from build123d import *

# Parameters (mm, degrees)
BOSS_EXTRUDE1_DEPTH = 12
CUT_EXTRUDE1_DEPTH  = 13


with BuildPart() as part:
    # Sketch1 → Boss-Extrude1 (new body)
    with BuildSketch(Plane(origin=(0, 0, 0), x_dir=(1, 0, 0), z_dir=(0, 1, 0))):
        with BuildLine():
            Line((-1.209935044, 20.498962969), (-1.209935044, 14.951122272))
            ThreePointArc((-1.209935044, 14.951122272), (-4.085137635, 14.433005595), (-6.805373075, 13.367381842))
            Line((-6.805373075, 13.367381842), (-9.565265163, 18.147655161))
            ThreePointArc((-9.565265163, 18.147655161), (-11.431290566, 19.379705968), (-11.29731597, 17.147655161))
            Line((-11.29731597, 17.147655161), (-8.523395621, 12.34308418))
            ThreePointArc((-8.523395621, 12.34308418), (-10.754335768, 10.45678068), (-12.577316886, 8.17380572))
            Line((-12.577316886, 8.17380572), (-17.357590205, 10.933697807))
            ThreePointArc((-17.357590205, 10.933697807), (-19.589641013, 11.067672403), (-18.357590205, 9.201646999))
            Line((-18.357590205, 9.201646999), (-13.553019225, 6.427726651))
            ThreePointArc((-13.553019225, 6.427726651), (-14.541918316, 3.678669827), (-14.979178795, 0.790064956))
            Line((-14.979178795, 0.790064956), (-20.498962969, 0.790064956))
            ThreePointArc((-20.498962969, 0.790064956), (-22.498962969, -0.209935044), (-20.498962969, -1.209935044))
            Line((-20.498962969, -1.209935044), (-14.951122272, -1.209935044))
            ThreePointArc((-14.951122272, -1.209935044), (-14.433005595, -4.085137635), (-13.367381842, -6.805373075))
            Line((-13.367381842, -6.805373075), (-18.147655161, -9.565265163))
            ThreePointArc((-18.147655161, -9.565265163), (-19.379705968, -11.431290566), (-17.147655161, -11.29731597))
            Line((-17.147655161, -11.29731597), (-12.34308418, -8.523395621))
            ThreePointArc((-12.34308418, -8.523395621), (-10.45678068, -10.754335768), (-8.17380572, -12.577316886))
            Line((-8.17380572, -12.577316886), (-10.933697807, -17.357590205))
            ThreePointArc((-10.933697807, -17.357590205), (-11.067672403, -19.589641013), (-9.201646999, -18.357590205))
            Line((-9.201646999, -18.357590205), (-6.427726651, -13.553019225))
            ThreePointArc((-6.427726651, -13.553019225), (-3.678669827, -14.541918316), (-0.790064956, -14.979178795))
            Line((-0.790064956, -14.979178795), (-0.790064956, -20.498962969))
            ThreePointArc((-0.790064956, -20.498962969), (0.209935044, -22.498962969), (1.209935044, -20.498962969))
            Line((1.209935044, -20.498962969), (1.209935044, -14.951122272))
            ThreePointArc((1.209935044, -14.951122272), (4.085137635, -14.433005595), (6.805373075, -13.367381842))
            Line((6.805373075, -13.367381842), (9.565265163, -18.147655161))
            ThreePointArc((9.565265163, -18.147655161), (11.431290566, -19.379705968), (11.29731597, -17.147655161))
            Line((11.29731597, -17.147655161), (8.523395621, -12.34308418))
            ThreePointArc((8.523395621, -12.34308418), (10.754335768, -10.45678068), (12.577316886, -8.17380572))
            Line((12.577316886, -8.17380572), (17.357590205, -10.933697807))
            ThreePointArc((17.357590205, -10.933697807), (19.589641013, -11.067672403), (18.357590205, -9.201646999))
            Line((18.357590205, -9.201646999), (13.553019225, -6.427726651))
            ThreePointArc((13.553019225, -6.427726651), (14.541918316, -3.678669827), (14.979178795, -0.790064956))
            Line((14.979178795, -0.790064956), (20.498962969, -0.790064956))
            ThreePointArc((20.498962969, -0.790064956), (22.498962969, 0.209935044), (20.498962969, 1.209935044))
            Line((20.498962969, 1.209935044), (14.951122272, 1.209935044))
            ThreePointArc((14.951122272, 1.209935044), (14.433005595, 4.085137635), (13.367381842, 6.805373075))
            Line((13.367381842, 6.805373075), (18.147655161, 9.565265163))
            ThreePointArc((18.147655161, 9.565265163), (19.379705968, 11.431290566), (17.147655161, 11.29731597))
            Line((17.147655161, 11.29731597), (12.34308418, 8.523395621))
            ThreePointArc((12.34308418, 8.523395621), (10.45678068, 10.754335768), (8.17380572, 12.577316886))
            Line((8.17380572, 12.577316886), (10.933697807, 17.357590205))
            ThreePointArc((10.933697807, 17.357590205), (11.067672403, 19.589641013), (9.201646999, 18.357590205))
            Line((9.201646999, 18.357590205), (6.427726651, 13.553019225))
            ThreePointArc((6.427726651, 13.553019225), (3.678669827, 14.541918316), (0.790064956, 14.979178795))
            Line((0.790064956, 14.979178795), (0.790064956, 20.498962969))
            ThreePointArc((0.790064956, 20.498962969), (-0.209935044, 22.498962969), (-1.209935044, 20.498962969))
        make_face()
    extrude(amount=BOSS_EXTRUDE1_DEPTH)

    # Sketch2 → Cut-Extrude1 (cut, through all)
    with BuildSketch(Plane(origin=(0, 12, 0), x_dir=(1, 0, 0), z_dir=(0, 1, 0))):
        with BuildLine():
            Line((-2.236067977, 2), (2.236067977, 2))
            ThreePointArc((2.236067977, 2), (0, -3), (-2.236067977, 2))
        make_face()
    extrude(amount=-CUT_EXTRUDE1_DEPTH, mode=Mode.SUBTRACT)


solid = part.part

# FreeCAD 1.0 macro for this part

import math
import FreeCAD as App
import Part
import Sketcher

V = App.Vector
Q = App.Units.Quantity

doc = App.newDocument("Part")
body = doc.addObject("PartDesign::Body", "Body")

sketch1 = body.newObject("Sketcher::SketchObject", "Sketch")
sketch1.AttachmentSupport = (doc.getObject("XZ_Plane"), [""])
sketch1.MapMode = "FlatFace"
sketch1.addGeometry([
    Part.LineSegment(V(-1.209935, -20.498963, 0), V(-1.209935, -14.951122, 0)),
    Part.ArcOfCircle(Part.Circle(V(0, 0, 0), V(0, 0, 1), 15), math.radians(-116.980777), math.radians(-94.626638)),
    Part.LineSegment(V(-6.805373, -13.367382, 0), V(-9.565265, -18.147655, 0)),
    Part.ArcOfCircle(Part.Circle(V(-10.806291, -18.297174, 0), V(0, 0, 1), 1.25), math.radians(113.130102), math.radians(366.869898)),
    Part.LineSegment(V(-11.297316, -17.147655, 0), V(-8.523396, -12.343084, 0)),
    Part.ArcOfCircle(Part.Circle(V(0, 0, 0), V(0, 0, 1), 15), math.radians(-146.980777), math.radians(-124.626638)),
    Part.LineSegment(V(-12.577317, -8.173806, 0), V(-17.35759, -10.933698, 0)),
    Part.ArcOfCircle(Part.Circle(V(-18.507109, -10.442672, 0), V(0, 0, 1), 1.25), math.radians(83.130102), math.radians(336.869898)),
    Part.LineSegment(V(-18.35759, -9.201647, 0), V(-13.553019, -6.427727, 0)),
    Part.ArcOfCircle(Part.Circle(V(0, 0, 0), V(0, 0, 1), 15), math.radians(-176.980777), math.radians(-154.626638)),
    Part.LineSegment(V(-14.979179, -0.790065, 0), V(-20.498963, -0.790065, 0)),
    Part.ArcOfCircle(Part.Circle(V(-21.248963, 0.209935, 0), V(0, 0, 1), 1.25), math.radians(53.130102), math.radians(306.869898)),
    Part.LineSegment(V(-20.498963, 1.209935, 0), V(-14.951122, 1.209935, 0)),
    Part.ArcOfCircle(Part.Circle(V(0, 0, 0), V(0, 0, 1), 15), math.radians(153.019223), math.radians(175.373362)),
    Part.LineSegment(V(-13.367382, 6.805373, 0), V(-18.147655, 9.565265, 0)),
    Part.ArcOfCircle(Part.Circle(V(-18.297174, 10.806291, 0), V(0, 0, 1), 1.25), math.radians(23.130102), math.radians(276.869898)),
    Part.LineSegment(V(-17.147655, 11.297316, 0), V(-12.343084, 8.523396, 0)),
    Part.ArcOfCircle(Part.Circle(V(0, 0, 0), V(0, 0, 1), 15), math.radians(123.019223), math.radians(145.373362)),
    Part.LineSegment(V(-8.173806, 12.577317, 0), V(-10.933698, 17.35759, 0)),
    Part.ArcOfCircle(Part.Circle(V(-10.442672, 18.507109, 0), V(0, 0, 1), 1.25), math.radians(-6.869898), math.radians(246.869898)),
    Part.LineSegment(V(-9.201647, 18.35759, 0), V(-6.427727, 13.553019, 0)),
    Part.ArcOfCircle(Part.Circle(V(0, 0, 0), V(0, 0, 1), 15), math.radians(93.019223), math.radians(115.373362)),
    Part.LineSegment(V(-0.790065, 14.979179, 0), V(-0.790065, 20.498963, 0)),
    Part.ArcOfCircle(Part.Circle(V(0.209935, 21.248963, 0), V(0, 0, 1), 1.25), math.radians(-36.869898), math.radians(216.869898)),
    Part.LineSegment(V(1.209935, 20.498963, 0), V(1.209935, 14.951122, 0)),
    Part.ArcOfCircle(Part.Circle(V(0, 0, 0), V(0, 0, 1), 15), math.radians(63.019223), math.radians(85.373362)),
    Part.LineSegment(V(6.805373, 13.367382, 0), V(9.565265, 18.147655, 0)),
    Part.ArcOfCircle(Part.Circle(V(10.806291, 18.297174, 0), V(0, 0, 1), 1.25), math.radians(-66.869898), math.radians(186.869898)),
    Part.LineSegment(V(11.297316, 17.147655, 0), V(8.523396, 12.343084, 0)),
    Part.ArcOfCircle(Part.Circle(V(0, 0, 0), V(0, 0, 1), 15), math.radians(33.019223), math.radians(55.373362)),
    Part.LineSegment(V(12.577317, 8.173806, 0), V(17.35759, 10.933698, 0)),
    Part.ArcOfCircle(Part.Circle(V(18.507109, 10.442672, 0), V(0, 0, 1), 1.25), math.radians(-96.869898), math.radians(156.869898)),
    Part.LineSegment(V(18.35759, 9.201647, 0), V(13.553019, 6.427727, 0)),
    Part.ArcOfCircle(Part.Circle(V(0, 0, 0), V(0, 0, 1), 15), math.radians(3.019223), math.radians(25.373362)),
    Part.LineSegment(V(14.979179, 0.790065, 0), V(20.498963, 0.790065, 0)),
    Part.ArcOfCircle(Part.Circle(V(21.248963, -0.209935, 0), V(0, 0, 1), 1.25), math.radians(-126.869898), math.radians(126.869898)),
    Part.LineSegment(V(20.498963, -1.209935, 0), V(14.951122, -1.209935, 0)),
    Part.ArcOfCircle(Part.Circle(V(0, 0, 0), V(0, 0, 1), 15), math.radians(-26.980777), math.radians(-4.626638)),
    Part.LineSegment(V(13.367382, -6.805373, 0), V(18.147655, -9.565265, 0)),
    Part.ArcOfCircle(Part.Circle(V(18.297174, -10.806291, 0), V(0, 0, 1), 1.25), math.radians(-156.869898), math.radians(96.869898)),
    Part.LineSegment(V(17.147655, -11.297316, 0), V(12.343084, -8.523396, 0)),
    Part.ArcOfCircle(Part.Circle(V(0, 0, 0), V(0, 0, 1), 15), math.radians(-56.980777), math.radians(-34.626638)),
    Part.LineSegment(V(8.173806, -12.577317, 0), V(10.933698, -17.35759, 0)),
    Part.ArcOfCircle(Part.Circle(V(10.442672, -18.507109, 0), V(0, 0, 1), 1.25), math.radians(173.130102), math.radians(426.869898)),
    Part.LineSegment(V(9.201647, -18.35759, 0), V(6.427727, -13.553019, 0)),
    Part.ArcOfCircle(Part.Circle(V(0, 0, 0), V(0, 0, 1), 15), math.radians(-86.980777), math.radians(-64.626638)),
    Part.LineSegment(V(0.790065, -14.979179, 0), V(0.790065, -20.498963, 0)),
    Part.ArcOfCircle(Part.Circle(V(-0.209935, -21.248963, 0), V(0, 0, 1), 1.25), math.radians(143.130102), math.radians(396.869898)),
], False)
sketch1.addConstraint([
    Sketcher.Constraint("Coincident", 0, 2, 1, 2),
    Sketcher.Constraint("Coincident", 1, 1, 2, 1),
    Sketcher.Constraint("Coincident", 2, 2, 3, 2),
    Sketcher.Constraint("Coincident", 3, 1, 4, 1),
    Sketcher.Constraint("Coincident", 4, 2, 5, 2),
    Sketcher.Constraint("Coincident", 5, 1, 6, 1),
    Sketcher.Constraint("Coincident", 6, 2, 7, 2),
    Sketcher.Constraint("Coincident", 7, 1, 8, 1),
    Sketcher.Constraint("Coincident", 8, 2, 9, 2),
    Sketcher.Constraint("Coincident", 9, 1, 10, 1),
    Sketcher.Constraint("Coincident", 10, 2, 11, 2),
    Sketcher.Constraint("Coincident", 11, 1, 12, 1),
    Sketcher.Constraint("Coincident", 12, 2, 13, 2),
    Sketcher.Constraint("Coincident", 13, 1, 14, 1),
    Sketcher.Constraint("Coincident", 14, 2, 15, 2),
    Sketcher.Constraint("Coincident", 15, 1, 16, 1),
    Sketcher.Constraint("Coincident", 16, 2, 17, 2),
    Sketcher.Constraint("Coincident", 17, 1, 18, 1),
    Sketcher.Constraint("Coincident", 18, 2, 19, 2),
    Sketcher.Constraint("Coincident", 19, 1, 20, 1),
    Sketcher.Constraint("Coincident", 20, 2, 21, 2),
    Sketcher.Constraint("Coincident", 21, 1, 22, 1),
    Sketcher.Constraint("Coincident", 22, 2, 23, 2),
    Sketcher.Constraint("Coincident", 23, 1, 24, 1),
    Sketcher.Constraint("Coincident", 24, 2, 25, 2),
    Sketcher.Constraint("Coincident", 25, 1, 26, 1),
    Sketcher.Constraint("Coincident", 26, 2, 27, 2),
    Sketcher.Constraint("Coincident", 27, 1, 28, 1),
    Sketcher.Constraint("Coincident", 28, 2, 29, 2),
    Sketcher.Constraint("Coincident", 29, 1, 30, 1),
    Sketcher.Constraint("Coincident", 30, 2, 31, 2),
    Sketcher.Constraint("Coincident", 31, 1, 32, 1),
    Sketcher.Constraint("Coincident", 32, 2, 33, 2),
    Sketcher.Constraint("Coincident", 33, 1, 34, 1),
    Sketcher.Constraint("Coincident", 34, 2, 35, 2),
    Sketcher.Constraint("Coincident", 35, 1, 36, 1),
    Sketcher.Constraint("Coincident", 36, 2, 37, 2),
    Sketcher.Constraint("Coincident", 37, 1, 38, 1),
    Sketcher.Constraint("Coincident", 38, 2, 39, 2),
    Sketcher.Constraint("Coincident", 39, 1, 40, 1),
    Sketcher.Constraint("Coincident", 40, 2, 41, 2),
    Sketcher.Constraint("Coincident", 41, 1, 42, 1),
    Sketcher.Constraint("Coincident", 42, 2, 43, 2),
    Sketcher.Constraint("Coincident", 43, 1, 44, 1),
    Sketcher.Constraint("Coincident", 44, 2, 45, 2),
    Sketcher.Constraint("Coincident", 45, 1, 46, 1),
    Sketcher.Constraint("Coincident", 46, 2, 47, 2),
    Sketcher.Constraint("Coincident", 47, 1, 0, 1),
    Sketcher.Constraint("Vertical", 0),
    Sketcher.Constraint("Horizontal", 10),
    Sketcher.Constraint("Horizontal", 12),
    Sketcher.Constraint("Vertical", 22),
    Sketcher.Constraint("Vertical", 24),
    Sketcher.Constraint("Horizontal", 34),
    Sketcher.Constraint("Horizontal", 36),
    Sketcher.Constraint("Vertical", 46),
    Sketcher.Constraint("Coincident", 1, 3, -1, 1),
    Sketcher.Constraint("Coincident", 5, 3, -1, 1),
    Sketcher.Constraint("Coincident", 9, 3, -1, 1),
    Sketcher.Constraint("Coincident", 13, 3, -1, 1),
    Sketcher.Constraint("Coincident", 17, 3, -1, 1),
    Sketcher.Constraint("Coincident", 21, 3, -1, 1),
    Sketcher.Constraint("Coincident", 25, 3, -1, 1),
    Sketcher.Constraint("Coincident", 29, 3, -1, 1),
    Sketcher.Constraint("Coincident", 33, 3, -1, 1),
    Sketcher.Constraint("Coincident", 37, 3, -1, 1),
    Sketcher.Constraint("Coincident", 41, 3, -1, 1),
    Sketcher.Constraint("Coincident", 45, 3, -1, 1),
    Sketcher.Constraint("Equal", 1, 5),
    Sketcher.Constraint("Equal", 3, 7),
    Sketcher.Constraint("Equal", 5, 9),
    Sketcher.Constraint("Equal", 7, 11),
    Sketcher.Constraint("Equal", 9, 13),
    Sketcher.Constraint("Equal", 11, 15),
    Sketcher.Constraint("Equal", 13, 17),
    Sketcher.Constraint("Equal", 15, 19),
    Sketcher.Constraint("Equal", 17, 21),
    Sketcher.Constraint("Equal", 19, 23),
    Sketcher.Constraint("Equal", 21, 25),
    Sketcher.Constraint("Equal", 23, 27),
    Sketcher.Constraint("Equal", 25, 29),
    Sketcher.Constraint("Equal", 27, 31),
    Sketcher.Constraint("Equal", 29, 33),
    Sketcher.Constraint("Equal", 31, 35),
    Sketcher.Constraint("Equal", 33, 37),
    Sketcher.Constraint("Equal", 35, 39),
    Sketcher.Constraint("Equal", 37, 41),
    Sketcher.Constraint("Equal", 39, 43),
    Sketcher.Constraint("Equal", 41, 45),
    Sketcher.Constraint("Equal", 43, 47),
    Sketcher.Constraint("Symmetric", 3, 3, 27, 3, -1, 1),
    Sketcher.Constraint("Symmetric", 7, 3, 31, 3, -1, 1),
    Sketcher.Constraint("Symmetric", 11, 3, 35, 3, -1, 1),
    Sketcher.Constraint("Symmetric", 15, 3, 39, 3, -1, 1),
    Sketcher.Constraint("Symmetric", 19, 3, 43, 3, -1, 1),
    Sketcher.Constraint("Symmetric", 23, 3, 47, 3, -1, 1),
    Sketcher.Constraint("Parallel", 2, 4),
    Sketcher.Constraint("Parallel", 6, 8),
    Sketcher.Constraint("Perpendicular", 4, 14),
    Sketcher.Constraint("Parallel", 14, 16),
    Sketcher.Constraint("Perpendicular", 8, 18),
    Sketcher.Constraint("Parallel", 18, 20),
    Sketcher.Constraint("Perpendicular", 16, 26),
    Sketcher.Constraint("Parallel", 26, 28),
    Sketcher.Constraint("Perpendicular", 20, 30),
    Sketcher.Constraint("Parallel", 30, 32),
    Sketcher.Constraint("Perpendicular", 28, 38),
    Sketcher.Constraint("Parallel", 38, 40),
    Sketcher.Constraint("Perpendicular", 32, 42),
    Sketcher.Constraint("Parallel", 42, 44),
    Sketcher.Constraint("Horizontal", 22, 2, 23, 1),
    Sketcher.Constraint("Horizontal", 46, 2, 47, 1),
    Sketcher.Constraint("Vertical", 10, 2, 11, 1),
    Sketcher.Constraint("Vertical", 34, 2, 35, 1),
    Sketcher.Constraint("Equal", 10, 34),
    Sketcher.Constraint("Equal", 36, 0),
    Sketcher.Constraint("Equal", 34, 22),
    Sketcher.Constraint("Equal", 0, 24),
    Sketcher.Constraint("Equal", 2, 6),
    Sketcher.Constraint("Equal", 4, 8),
    Sketcher.Constraint("Equal", 6, 14),
    Sketcher.Constraint("Equal", 8, 16),
    Sketcher.Constraint("Equal", 14, 18),
    Sketcher.Constraint("Equal", 16, 20),
    Sketcher.Constraint("Equal", 18, 26),
    Sketcher.Constraint("Equal", 20, 28),
    Sketcher.Constraint("Equal", 26, 30),
    Sketcher.Constraint("Equal", 28, 32),
    Sketcher.Constraint("Equal", 30, 38),
    Sketcher.Constraint("Equal", 32, 40),
    Sketcher.Constraint("Equal", 38, 42),
    Sketcher.Constraint("Equal", 40, 44),
    Sketcher.Constraint("Radius", 1, Q("15 mm")),
    Sketcher.Constraint("Angle", 2, Q("-120 deg")),
    Sketcher.Constraint("Angle", 6, Q("-150 deg")),
    Sketcher.Constraint("Radius", 3, Q("1.25 mm")),
    Sketcher.Constraint("DistanceX", 12, 1, 12, 2, Q("5.547841 mm")),
    Sketcher.Constraint("Distance", 4, Q("5.547841 mm")),
    Sketcher.Constraint("DistanceX", 10, 2, 10, 1, Q("5.519784 mm")),
    Sketcher.Constraint("DistanceX", 3, 3, -1, 1, Q("10.806291 mm")),
    Sketcher.Constraint("DistanceX", 7, 3, -1, 1, Q("18.507109 mm")),
    Sketcher.Constraint("DistanceY", -1, 1, 15, 3, Q("10.806291 mm")),
    Sketcher.Constraint("DistanceY", -1, 1, 19, 3, Q("18.507109 mm")),
    Sketcher.Constraint("DistanceY", 1, 1, -1, 1, Q("13.367382 mm")),
    Sketcher.Constraint("DistanceX", 6, 2, -1, 1, Q("17.35759 mm")),
    Sketcher.Constraint("DistanceX", 7, 1, -1, 1, Q("18.35759 mm")),
    Sketcher.Constraint("DistanceX", 9, 1, -1, 1, Q("14.979179 mm")),
    Sketcher.Constraint("DistanceX", 13, 1, -1, 1, Q("13.367382 mm")),
    Sketcher.Constraint("DistanceY", -1, 1, 18, 2, Q("17.35759 mm")),
    Sketcher.Constraint("DistanceY", -1, 1, 21, 1, Q("14.979179 mm")),
])
pad1 = body.newObject("PartDesign::Pad", "Pad")
pad1.Profile = sketch1
pad1.Length = 12
pad1.Reversed = True

sketch2 = body.newObject("Sketcher::SketchObject", "Sketch001")
sketch2.AttachmentSupport = (doc.getObject("XZ_Plane"), [""])
sketch2.MapMode = "FlatFace"
sketch2.AttachmentOffset = App.Placement(V(0, 0, -12), App.Rotation())
sketch2.addGeometry([
    Part.LineSegment(V(2.236068, -2, 0), V(-2.236068, -2, 0)),
    Part.ArcOfCircle(Part.Circle(V(0, 0, 0), V(0, 0, 1), 3), math.radians(-41.810315), math.radians(221.810315)),
], False)
sketch2.addConstraint([
    Sketcher.Constraint("Coincident", 0, 1, 1, 1),
    Sketcher.Constraint("Coincident", 1, 2, 0, 2),
    Sketcher.Constraint("Horizontal", 0),
    Sketcher.Constraint("Coincident", 1, 3, -1, 1),
    Sketcher.Constraint("Radius", 1, Q("3 mm")),
    Sketcher.Constraint("DistanceY", 0, 1, -1, 1, Q("2 mm")),
])
pocket1 = body.newObject("PartDesign::Pocket", "Pocket")
pocket1.Profile = sketch2
pocket1.Type = "ThroughAll"
pocket1.Reversed = True

doc.recompute()
